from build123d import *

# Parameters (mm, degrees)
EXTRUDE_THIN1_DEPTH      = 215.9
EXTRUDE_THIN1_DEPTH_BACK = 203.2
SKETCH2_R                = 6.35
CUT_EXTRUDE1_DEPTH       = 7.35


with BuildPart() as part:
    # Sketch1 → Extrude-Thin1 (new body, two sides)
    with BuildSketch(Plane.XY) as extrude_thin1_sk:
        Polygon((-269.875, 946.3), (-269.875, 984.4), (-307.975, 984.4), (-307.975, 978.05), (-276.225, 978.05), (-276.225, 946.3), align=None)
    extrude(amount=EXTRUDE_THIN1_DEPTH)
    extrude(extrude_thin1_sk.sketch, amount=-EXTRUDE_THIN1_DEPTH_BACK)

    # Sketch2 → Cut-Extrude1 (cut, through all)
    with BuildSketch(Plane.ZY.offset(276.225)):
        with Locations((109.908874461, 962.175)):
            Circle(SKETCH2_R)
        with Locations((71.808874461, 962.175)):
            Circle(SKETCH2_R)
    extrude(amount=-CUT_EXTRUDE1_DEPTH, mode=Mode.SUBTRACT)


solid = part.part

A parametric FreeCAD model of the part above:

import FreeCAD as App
import Part
import Sketcher
from FreeCAD import Vector
Q = App.Units.Quantity

doc = App.newDocument("Part")
body = doc.addObject("PartDesign::Body", "Body")

# Sketch on XY plane
sketch1 = body.newObject("Sketcher::SketchObject", "Sketch")
sketch1.AttachmentSupport = (doc.getObject("XY_Plane"), [""])
sketch1.MapMode = "FlatFace"
sketch1.addGeometry([
    Part.LineSegment(Vector(-270, 946, 0), Vector(-270, 984, 0)),  # 0
    Part.LineSegment(Vector(-270, 984, 0), Vector(-308, 984, 0)),  # 1
    Part.LineSegment(Vector(-308, 984, 0), Vector(-308, 978, 0)),  # 2
    Part.LineSegment(Vector(-308, 978, 0), Vector(-276, 978, 0)),  # 3
    Part.LineSegment(Vector(-276, 978, 0), Vector(-276, 946, 0)),  # 4
    Part.LineSegment(Vector(-276, 946, 0), Vector(-270, 946, 0)),  # 5
], False)
sketch1.addConstraint([
    Sketcher.Constraint("Coincident", 0, 2, 1, 1),
    Sketcher.Constraint("Coincident", 1, 2, 2, 1),
    Sketcher.Constraint("Coincident", 2, 2, 3, 1),
    Sketcher.Constraint("Coincident", 3, 2, 4, 1),
    Sketcher.Constraint("Coincident", 4, 2, 5, 1),
    Sketcher.Constraint("Coincident", 5, 2, 0, 1),
    Sketcher.Constraint("Vertical", 0),
    Sketcher.Constraint("Horizontal", 1),
    Sketcher.Constraint("Vertical", 2),
    Sketcher.Constraint("Horizontal", 3),
    Sketcher.Constraint("Vertical", 4),
    Sketcher.Constraint("Horizontal", 5),
    Sketcher.Constraint("Equal", 1, 0),
    Sketcher.Constraint("Equal", 5, 2),
    Sketcher.Constraint("DistanceX", 1, 2, 1, 1, Q("1.5 in")),
    Sketcher.Constraint("DistanceX", 3, 1, 3, 2, Q("1.25 in")),
    Sketcher.Constraint("DistanceX", 0, 2, -1, 1, Q("10.625 in")),
    Sketcher.Constraint("DistanceY", -1, 1, 0, 2, Q("984.4 mm")),
])
pad1 = body.newObject("PartDesign::Pad", "Pad")
pad1.Profile = sketch1
pad1.Type = "TwoLengths"
pad1.Length = Q("8.5 in")
pad1.Length2 = Q("8 in")

# Sketch on YZ plane
sketch2 = body.newObject("Sketcher::SketchObject", "Sketch001")
sketch2.AttachmentSupport = (doc.getObject("YZ_Plane"), [""])
sketch2.MapMode = "FlatFace"
sketch2.AttachmentOffset = App.Placement(Vector(0, 0, -10.875 * 25.4), App.Rotation())
sketch2.addGeometry([
    Part.Circle(Vector(962, 110, 0), Vector(0, 0, 1), 6),
    Part.Circle(Vector(962, 72, 0), Vector(0, 0, 1), 6),
], False)
sketch2.addConstraint([
    Sketcher.Constraint("Equal", 0, 1),
    Sketcher.Constraint("Vertical", 0, 3, 1, 3),
    Sketcher.Constraint("Diameter", 0, Q("0.5 in")),
    Sketcher.Constraint("DistanceY", 1, 3, 0, 3, Q("1.5 in")),
    Sketcher.Constraint("DistanceX", -1, 1, 0, 3, Q("962.175 mm")),
    Sketcher.Constraint("DistanceY", -1, 1, 0, 3, Q("109.908874 mm")),
])
pocket1 = body.newObject("PartDesign::Pocket", "Pocket")
pocket1.Profile = sketch2
pocket1.Type = "ThroughAll"
pocket1.Reversed = True

doc.recompute()
